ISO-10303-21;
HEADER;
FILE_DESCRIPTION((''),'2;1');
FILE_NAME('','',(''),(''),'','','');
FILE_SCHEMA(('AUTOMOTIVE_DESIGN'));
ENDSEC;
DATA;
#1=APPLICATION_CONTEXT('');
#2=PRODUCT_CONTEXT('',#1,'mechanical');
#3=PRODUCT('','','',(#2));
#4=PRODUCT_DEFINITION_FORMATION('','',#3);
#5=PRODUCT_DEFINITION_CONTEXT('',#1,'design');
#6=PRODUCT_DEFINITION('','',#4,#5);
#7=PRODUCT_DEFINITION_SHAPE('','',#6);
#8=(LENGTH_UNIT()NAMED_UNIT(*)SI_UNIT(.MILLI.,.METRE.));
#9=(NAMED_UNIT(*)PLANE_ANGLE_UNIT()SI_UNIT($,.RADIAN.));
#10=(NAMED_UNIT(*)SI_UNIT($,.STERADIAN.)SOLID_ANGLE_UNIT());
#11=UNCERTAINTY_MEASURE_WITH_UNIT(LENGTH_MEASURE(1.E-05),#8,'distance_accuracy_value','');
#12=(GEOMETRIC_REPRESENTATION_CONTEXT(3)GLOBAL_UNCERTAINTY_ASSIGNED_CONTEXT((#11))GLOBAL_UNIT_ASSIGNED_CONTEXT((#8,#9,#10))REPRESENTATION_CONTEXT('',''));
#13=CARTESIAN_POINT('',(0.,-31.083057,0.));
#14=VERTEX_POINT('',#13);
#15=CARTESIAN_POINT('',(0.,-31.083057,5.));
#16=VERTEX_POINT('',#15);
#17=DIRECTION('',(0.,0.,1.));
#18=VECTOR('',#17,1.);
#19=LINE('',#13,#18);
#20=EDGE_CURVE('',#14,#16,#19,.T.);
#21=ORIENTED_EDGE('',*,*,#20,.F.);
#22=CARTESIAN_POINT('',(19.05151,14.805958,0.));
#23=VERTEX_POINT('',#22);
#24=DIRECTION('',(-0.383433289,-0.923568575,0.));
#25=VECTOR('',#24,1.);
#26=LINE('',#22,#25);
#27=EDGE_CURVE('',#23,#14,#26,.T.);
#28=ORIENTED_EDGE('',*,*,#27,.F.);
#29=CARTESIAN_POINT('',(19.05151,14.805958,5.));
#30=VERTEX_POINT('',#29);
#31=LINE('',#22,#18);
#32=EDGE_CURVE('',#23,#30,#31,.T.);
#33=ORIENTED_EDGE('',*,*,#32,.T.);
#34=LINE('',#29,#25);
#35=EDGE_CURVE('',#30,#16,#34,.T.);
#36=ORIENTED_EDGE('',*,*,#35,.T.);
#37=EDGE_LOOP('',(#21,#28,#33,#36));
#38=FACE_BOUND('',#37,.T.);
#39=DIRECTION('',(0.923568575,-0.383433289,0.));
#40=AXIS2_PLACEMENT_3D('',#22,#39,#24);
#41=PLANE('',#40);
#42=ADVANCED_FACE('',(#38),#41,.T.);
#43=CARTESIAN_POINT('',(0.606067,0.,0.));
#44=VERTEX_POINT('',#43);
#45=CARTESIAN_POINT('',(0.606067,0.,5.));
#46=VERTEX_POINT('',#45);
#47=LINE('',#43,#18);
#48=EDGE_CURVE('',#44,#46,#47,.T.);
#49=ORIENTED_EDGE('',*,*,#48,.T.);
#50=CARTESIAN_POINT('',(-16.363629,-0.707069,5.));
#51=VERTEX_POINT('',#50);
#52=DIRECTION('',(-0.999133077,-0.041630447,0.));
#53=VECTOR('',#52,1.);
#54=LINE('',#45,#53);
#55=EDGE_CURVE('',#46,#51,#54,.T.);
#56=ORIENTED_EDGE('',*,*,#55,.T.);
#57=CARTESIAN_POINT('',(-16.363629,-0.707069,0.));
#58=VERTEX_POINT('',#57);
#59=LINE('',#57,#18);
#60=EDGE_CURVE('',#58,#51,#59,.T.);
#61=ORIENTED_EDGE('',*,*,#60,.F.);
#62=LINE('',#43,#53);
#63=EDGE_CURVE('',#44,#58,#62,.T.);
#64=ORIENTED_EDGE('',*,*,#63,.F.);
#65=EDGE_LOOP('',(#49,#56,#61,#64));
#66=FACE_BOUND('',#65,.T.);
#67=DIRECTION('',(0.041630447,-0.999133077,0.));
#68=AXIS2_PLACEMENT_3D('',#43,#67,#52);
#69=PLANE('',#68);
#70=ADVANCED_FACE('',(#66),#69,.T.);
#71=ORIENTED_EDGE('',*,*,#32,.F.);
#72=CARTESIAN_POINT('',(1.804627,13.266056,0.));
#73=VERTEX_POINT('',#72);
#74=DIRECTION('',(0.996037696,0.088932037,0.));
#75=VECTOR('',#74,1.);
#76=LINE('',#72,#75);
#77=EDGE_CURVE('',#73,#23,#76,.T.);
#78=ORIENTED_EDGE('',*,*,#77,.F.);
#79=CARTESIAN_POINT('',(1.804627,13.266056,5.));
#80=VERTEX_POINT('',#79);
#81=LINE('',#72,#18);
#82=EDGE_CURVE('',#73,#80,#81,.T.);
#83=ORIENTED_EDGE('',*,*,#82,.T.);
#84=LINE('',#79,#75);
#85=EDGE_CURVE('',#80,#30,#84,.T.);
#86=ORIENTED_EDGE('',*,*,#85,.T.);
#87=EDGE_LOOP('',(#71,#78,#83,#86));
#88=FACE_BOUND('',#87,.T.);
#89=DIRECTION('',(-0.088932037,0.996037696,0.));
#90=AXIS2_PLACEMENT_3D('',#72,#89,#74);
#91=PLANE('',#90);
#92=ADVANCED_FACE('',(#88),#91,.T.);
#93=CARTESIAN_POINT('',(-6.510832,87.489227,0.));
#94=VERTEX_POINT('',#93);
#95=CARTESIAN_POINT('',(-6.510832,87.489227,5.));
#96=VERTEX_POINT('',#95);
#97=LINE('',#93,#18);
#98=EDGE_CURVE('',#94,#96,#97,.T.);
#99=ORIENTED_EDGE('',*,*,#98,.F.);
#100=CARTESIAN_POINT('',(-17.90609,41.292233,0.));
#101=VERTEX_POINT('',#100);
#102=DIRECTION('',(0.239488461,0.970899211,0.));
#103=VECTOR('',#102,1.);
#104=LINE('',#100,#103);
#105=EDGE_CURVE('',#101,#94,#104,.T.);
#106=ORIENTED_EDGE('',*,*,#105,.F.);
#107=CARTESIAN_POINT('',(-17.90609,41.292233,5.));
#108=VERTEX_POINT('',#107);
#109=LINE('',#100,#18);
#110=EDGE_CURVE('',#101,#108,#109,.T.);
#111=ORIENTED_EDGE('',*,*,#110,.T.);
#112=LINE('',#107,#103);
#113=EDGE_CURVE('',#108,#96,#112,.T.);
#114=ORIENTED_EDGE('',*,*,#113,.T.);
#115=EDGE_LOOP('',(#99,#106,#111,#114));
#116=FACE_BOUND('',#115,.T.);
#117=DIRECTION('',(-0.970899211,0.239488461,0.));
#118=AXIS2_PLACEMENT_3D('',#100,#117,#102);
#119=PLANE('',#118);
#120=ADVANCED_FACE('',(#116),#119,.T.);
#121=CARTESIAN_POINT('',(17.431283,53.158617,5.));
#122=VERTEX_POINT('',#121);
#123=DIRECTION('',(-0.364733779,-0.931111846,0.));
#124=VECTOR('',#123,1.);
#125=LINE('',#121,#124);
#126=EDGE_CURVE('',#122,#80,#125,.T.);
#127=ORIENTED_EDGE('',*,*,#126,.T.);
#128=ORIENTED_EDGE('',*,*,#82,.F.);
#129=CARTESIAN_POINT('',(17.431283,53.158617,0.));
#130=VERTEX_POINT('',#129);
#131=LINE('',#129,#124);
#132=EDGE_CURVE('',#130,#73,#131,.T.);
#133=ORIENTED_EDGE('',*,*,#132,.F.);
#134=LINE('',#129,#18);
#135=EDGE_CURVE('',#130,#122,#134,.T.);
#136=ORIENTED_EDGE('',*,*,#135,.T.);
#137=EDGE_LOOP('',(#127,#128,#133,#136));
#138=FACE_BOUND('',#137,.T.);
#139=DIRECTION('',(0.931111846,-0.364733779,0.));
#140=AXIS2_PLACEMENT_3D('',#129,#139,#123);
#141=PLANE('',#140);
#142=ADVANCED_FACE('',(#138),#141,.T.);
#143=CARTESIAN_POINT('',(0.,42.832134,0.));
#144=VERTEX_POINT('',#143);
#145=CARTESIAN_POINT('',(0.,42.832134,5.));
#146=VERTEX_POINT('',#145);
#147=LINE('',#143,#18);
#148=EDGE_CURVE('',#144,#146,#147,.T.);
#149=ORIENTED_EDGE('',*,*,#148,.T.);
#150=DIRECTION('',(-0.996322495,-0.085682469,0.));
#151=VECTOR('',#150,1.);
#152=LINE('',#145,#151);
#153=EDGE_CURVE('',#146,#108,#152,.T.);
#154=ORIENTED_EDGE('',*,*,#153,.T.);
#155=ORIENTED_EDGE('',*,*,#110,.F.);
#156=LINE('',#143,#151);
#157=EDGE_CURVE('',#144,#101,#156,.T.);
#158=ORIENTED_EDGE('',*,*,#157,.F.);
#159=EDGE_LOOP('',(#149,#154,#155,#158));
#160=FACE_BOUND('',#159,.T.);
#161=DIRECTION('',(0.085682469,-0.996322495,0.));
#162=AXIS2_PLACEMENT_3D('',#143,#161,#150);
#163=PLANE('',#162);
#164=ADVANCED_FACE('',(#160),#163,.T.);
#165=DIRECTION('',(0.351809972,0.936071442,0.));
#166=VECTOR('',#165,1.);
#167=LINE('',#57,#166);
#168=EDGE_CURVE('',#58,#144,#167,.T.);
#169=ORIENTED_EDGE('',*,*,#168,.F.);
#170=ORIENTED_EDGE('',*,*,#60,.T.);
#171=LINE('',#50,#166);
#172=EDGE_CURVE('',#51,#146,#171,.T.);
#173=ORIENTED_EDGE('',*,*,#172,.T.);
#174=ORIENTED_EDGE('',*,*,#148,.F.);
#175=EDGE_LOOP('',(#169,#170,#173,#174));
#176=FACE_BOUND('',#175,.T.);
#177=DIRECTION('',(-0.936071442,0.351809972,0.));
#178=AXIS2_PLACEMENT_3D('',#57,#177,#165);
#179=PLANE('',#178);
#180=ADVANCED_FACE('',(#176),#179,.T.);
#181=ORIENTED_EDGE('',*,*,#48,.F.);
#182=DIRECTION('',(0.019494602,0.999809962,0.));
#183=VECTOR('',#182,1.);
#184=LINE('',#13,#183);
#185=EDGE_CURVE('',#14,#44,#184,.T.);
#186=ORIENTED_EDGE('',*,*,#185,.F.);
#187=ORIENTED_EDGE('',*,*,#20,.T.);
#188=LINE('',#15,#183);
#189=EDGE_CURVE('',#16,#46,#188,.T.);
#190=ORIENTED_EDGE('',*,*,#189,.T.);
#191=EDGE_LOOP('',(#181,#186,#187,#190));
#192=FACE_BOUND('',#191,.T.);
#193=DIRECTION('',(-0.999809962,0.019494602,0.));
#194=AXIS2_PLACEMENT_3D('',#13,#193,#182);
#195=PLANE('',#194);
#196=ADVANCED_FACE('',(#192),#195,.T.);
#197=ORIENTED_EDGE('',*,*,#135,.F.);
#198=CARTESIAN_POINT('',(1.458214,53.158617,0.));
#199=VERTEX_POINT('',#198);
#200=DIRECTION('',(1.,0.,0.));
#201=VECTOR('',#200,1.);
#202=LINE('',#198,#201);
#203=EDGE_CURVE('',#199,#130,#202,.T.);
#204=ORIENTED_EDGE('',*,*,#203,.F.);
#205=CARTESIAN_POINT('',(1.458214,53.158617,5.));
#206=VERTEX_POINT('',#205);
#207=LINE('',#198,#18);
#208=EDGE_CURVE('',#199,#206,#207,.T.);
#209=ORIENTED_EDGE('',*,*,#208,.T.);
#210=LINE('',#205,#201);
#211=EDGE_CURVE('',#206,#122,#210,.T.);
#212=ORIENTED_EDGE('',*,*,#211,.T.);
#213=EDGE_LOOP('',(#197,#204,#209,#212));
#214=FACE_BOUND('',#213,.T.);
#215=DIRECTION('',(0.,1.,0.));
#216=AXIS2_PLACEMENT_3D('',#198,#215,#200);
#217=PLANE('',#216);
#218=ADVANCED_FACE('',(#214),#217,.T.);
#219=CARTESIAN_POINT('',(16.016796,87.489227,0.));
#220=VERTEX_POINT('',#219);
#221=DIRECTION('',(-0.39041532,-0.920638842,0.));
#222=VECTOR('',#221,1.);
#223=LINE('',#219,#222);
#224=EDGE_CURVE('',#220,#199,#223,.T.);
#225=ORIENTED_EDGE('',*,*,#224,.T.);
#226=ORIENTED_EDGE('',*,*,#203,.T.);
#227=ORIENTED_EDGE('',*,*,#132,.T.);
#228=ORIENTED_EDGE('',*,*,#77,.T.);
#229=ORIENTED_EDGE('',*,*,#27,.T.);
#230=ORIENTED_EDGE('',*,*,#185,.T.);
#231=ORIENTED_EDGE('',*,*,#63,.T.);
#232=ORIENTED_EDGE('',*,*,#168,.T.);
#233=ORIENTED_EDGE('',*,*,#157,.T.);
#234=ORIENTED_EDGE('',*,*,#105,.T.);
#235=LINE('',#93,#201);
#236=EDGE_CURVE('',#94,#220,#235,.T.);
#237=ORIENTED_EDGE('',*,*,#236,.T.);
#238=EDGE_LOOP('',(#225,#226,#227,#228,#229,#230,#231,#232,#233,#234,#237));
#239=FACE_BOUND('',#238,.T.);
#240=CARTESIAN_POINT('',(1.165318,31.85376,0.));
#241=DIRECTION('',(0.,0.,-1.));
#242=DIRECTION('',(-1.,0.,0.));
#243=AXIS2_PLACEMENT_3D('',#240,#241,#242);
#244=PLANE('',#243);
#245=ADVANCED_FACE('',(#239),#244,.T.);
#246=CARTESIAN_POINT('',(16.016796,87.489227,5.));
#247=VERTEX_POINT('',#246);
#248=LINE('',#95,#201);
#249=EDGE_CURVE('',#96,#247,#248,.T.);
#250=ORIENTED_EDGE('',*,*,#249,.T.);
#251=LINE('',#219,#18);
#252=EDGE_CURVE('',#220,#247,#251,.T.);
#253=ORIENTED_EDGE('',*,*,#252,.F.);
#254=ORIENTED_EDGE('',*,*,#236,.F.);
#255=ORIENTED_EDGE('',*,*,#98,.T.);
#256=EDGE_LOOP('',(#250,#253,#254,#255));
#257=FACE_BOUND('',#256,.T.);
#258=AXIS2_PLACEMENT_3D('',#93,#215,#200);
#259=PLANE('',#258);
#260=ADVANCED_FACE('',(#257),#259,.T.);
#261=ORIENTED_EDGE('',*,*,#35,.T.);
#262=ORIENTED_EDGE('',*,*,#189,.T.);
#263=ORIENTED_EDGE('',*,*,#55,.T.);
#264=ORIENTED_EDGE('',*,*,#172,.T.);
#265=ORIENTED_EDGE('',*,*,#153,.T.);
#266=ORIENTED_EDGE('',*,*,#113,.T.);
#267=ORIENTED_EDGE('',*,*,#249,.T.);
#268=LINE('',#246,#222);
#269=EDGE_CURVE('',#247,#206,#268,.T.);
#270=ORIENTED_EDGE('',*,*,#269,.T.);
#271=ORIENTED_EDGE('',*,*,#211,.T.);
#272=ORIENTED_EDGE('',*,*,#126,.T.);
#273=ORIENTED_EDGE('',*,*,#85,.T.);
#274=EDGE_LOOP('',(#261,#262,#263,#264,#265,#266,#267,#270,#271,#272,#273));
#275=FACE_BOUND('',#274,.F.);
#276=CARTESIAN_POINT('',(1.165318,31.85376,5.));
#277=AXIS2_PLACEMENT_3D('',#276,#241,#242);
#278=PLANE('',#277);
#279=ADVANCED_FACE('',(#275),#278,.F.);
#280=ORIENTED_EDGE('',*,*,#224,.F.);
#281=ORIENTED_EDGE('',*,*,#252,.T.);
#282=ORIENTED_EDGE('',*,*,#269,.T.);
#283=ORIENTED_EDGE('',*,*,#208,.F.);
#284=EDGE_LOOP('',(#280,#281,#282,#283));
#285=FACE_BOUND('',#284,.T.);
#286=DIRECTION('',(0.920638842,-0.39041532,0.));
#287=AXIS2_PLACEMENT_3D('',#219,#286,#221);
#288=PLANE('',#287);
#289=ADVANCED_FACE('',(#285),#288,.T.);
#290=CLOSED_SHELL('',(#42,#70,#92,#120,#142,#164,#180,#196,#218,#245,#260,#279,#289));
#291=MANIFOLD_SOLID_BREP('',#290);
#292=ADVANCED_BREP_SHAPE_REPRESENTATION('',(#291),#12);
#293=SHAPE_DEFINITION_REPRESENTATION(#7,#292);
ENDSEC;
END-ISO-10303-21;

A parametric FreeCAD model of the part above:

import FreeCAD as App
import Part
import Sketcher
from FreeCAD import Vector

doc = App.newDocument("Part")
params = doc.addObject("Spreadsheet::Sheet", "Params")
for row, (alias, value) in enumerate([
    ("pad1_length", "5 mm"),
], start=1):
    params.set(f"A{row}", alias)
    params.set(f"B{row}", "=" + value)
    params.setAlias(f"B{row}", alias)

body = doc.addObject("PartDesign::Body", "Body")

sketch1 = body.newObject("Sketcher::SketchObject", "Sketch")
sketch1.AttachmentSupport = (doc.getObject("XY_Plane"), [""])
sketch1.MapMode = "FlatFace"
sketch1.addGeometry([
    Part.LineSegment(Vector(16.016796, 87.489227, 0), Vector(-6.510832, 87.489227, 0)),
    Part.LineSegment(Vector(-6.510832, 87.489227, 0), Vector(-17.90609, 41.292233, 0)),
    Part.LineSegment(Vector(-17.90609, 41.292233, 0), Vector(0, 42.832134, 0)),
    Part.LineSegment(Vector(0, 42.832134, 0), Vector(-16.363629, -0.707069, 0)),
    Part.LineSegment(Vector(-16.363629, -0.707069, 0), Vector(0.606067, 0, 0)),
    Part.LineSegment(Vector(0.606067, 0, 0), Vector(0, -31.083057, 0)),
    Part.LineSegment(Vector(0, -31.083057, 0), Vector(19.05151, 14.805958, 0)),
    Part.LineSegment(Vector(19.05151, 14.805958, 0), Vector(1.804627, 13.266056, 0)),
    Part.LineSegment(Vector(1.804627, 13.266056, 0), Vector(17.431283, 53.158617, 0)),
    Part.LineSegment(Vector(17.431283, 53.158617, 0), Vector(1.458214, 53.158617, 0)),
    Part.LineSegment(Vector(1.458214, 53.158617, 0), Vector(16.016796, 87.489227, 0)),
], False)
sketch1.addConstraint([
    Sketcher.Constraint("Coincident", 0, 2, 1, 1),
    Sketcher.Constraint("Coincident", 1, 2, 2, 1),
    Sketcher.Constraint("Coincident", 2, 2, 3, 1),
    Sketcher.Constraint("Coincident", 3, 2, 4, 1),
    Sketcher.Constraint("Coincident", 4, 2, 5, 1),
    Sketcher.Constraint("Coincident", 5, 2, 6, 1),
    Sketcher.Constraint("Coincident", 6, 2, 7, 1),
    Sketcher.Constraint("Coincident", 7, 2, 8, 1),
    Sketcher.Constraint("Coincident", 8, 2, 9, 1),
    Sketcher.Constraint("Coincident", 9, 2, 10, 1),
    Sketcher.Constraint("Coincident", 10, 2, 0, 1),
    Sketcher.Constraint("Horizontal", 0),
    Sketcher.Constraint("Horizontal", 9),
    Sketcher.Constraint("PointOnObject", 2, 2, -2),
    Sketcher.Constraint("PointOnObject", 4, 2, -1),
    Sketcher.Constraint("PointOnObject", 5, 2, -2),
    Sketcher.Constraint("DistanceX", 0, 2, 0, 1, 22.527628),
    Sketcher.Constraint("DistanceX", 9, 2, 9, 1, 15.973069),
    Sketcher.Constraint("DistanceY", 1, 2, 2, 2, 1.539901),
    Sketcher.Constraint("DistanceX", 0, 2, 4, 2, 7.116899),
    Sketcher.Constraint("DistanceX", 1, 2, 6, 2, 36.9576),
    Sketcher.Constraint("DistanceY", 7, 2, 6, 2, 1.539902),
    Sketcher.Constraint("Distance", 4, 16.98442),
    Sketcher.Constraint("DistanceX", 0, 2, -1, 1, 6.510832),
    Sketcher.Constraint("DistanceX", 1, 2, -1, 1, 17.90609),
    Sketcher.Constraint("DistanceX", 3, 2, -1, 1, 16.363629),
    Sketcher.Constraint("DistanceY", 5, 2, 2, 2, 73.915191),
    Sketcher.Constraint("DistanceX", 4, 2, 7, 2, 1.19856),
    Sketcher.Constraint("DistanceY", 7, 2, 2, 2, 29.566078),
    Sketcher.Constraint("DistanceY", 6, 2, 8, 2, 38.352659),
    Sketcher.Constraint("DistanceY", 8, 2, 0, 2, 34.33061),
    Sketcher.Constraint("Distance", 3, 46.512692),
    Sketcher.Constraint("Distance", 8, 42.844005),
])
pad1 = body.newObject("PartDesign::Pad", "Pad")
pad1.Profile = sketch1
pad1.setExpression("Length", "Params.pad1_length")

doc.recompute()
